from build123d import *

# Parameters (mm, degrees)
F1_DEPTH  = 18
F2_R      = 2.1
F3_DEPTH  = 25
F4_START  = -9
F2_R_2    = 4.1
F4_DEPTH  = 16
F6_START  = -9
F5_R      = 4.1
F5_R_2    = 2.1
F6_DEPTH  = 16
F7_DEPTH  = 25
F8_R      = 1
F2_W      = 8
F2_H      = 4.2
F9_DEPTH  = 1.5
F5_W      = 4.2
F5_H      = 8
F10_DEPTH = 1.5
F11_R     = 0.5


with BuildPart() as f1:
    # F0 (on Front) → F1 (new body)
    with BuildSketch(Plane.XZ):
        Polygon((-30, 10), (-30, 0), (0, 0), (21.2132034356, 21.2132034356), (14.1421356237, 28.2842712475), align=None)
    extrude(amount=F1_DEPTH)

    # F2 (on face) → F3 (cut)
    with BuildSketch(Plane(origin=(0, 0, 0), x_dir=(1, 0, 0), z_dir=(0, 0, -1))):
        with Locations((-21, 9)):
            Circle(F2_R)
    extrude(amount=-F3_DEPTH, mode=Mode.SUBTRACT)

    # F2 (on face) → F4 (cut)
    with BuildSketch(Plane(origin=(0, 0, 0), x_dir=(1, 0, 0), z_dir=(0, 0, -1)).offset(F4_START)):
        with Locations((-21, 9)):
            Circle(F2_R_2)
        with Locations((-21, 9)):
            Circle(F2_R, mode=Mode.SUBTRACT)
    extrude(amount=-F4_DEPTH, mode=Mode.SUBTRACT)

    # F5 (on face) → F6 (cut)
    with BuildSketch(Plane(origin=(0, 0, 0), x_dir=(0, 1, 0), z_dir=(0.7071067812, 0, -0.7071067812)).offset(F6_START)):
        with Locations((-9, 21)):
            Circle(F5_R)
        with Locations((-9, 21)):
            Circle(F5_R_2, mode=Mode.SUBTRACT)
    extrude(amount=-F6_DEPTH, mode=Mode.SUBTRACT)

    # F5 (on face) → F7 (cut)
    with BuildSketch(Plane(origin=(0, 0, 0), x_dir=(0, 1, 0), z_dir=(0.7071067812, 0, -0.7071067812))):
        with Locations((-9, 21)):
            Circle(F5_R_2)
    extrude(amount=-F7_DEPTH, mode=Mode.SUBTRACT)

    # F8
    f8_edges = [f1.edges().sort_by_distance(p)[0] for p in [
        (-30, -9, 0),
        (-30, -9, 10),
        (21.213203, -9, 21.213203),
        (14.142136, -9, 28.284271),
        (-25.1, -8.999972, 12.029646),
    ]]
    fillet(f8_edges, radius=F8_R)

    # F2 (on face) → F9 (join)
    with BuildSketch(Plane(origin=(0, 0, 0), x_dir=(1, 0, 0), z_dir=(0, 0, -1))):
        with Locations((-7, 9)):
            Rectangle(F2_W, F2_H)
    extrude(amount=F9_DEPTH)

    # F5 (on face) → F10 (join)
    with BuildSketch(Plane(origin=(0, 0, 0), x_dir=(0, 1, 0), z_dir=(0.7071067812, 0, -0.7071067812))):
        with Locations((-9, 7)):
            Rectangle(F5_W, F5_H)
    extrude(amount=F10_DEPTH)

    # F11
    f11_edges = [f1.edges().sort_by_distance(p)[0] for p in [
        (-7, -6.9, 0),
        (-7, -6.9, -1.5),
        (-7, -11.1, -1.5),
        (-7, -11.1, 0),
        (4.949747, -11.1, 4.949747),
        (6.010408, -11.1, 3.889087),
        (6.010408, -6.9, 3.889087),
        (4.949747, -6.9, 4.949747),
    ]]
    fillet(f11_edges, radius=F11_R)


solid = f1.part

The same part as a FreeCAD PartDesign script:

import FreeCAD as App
import Part
import Sketcher
Q = App.Units.Quantity


def edges_at(feature, points):
    """Names of the edges that pass closest to the given points."""
    edges = feature.Shape.Edges
    near = lambda p: min(range(len(edges)), key=lambda i: edges[i].distToShape(Part.Vertex(*p))[0])
    return sorted({f"Edge{near(p) + 1}" for p in points})


def add_polygon(sketch, points):
    """Adds a closed chain of lines whose ends are joined by coincident constraints."""
    first, n = sketch.GeometryCount, len(points)
    for a, b in zip(points, points[1:] + points[:1]):
        sketch.addGeometry(Part.LineSegment(App.Vector(*a, 0), App.Vector(*b, 0)), False)
    for i in range(n):
        sketch.addConstraint(Sketcher.Constraint("Coincident", first + i, 2, first + (i + 1) % n, 1))

doc = App.newDocument("Part")
body = doc.addObject("PartDesign::Body", "Body")

sketch1 = body.newObject("Sketcher::SketchObject", "Sketch")
sketch1.AttachmentSupport = (doc.getObject("XZ_Plane"), [""])
sketch1.MapMode = "FlatFace"
add_polygon(sketch1, [(-30, 10), (-30, 0), (0, 0), (21.213203, 21.213203), (14.142136, 28.284271)])
sketch1.addConstraint([
    Sketcher.Constraint("Vertical", 0),
    Sketcher.Constraint("Horizontal", 1),
    Sketcher.Constraint("Coincident", 1, 2, -1, 1),
    Sketcher.Constraint("Perpendicular", 2, 3),
    Sketcher.Constraint("DistanceX", 1, 1, 1, 2, Q("30 mm")),
    Sketcher.Constraint("DistanceY", 0, 2, 0, 1, Q("10 mm")),
    Sketcher.Constraint("Angle", 2, Q("45 deg")),
    Sketcher.Constraint("Distance", 2, Q("30 mm")),
    Sketcher.Constraint("Distance", 3, Q("10 mm")),
])
pad1 = body.newObject("PartDesign::Pad", "Pad")
pad1.Profile = sketch1
pad1.Length = 18

sketch2 = body.newObject("Sketcher::SketchObject", "Sketch001")
sketch2.AttachmentSupport = (doc.getObject("XY_Plane"), [""])
sketch2.MapMode = "FlatFace"
sketch2.addGeometry(Part.Circle(App.Vector(-21, -9, 0), App.Vector(0, 0, 1), 2.1), False)
sketch2.addConstraint([
    Sketcher.Constraint("Diameter", 0, Q("4.2 mm")),
    Sketcher.Constraint("DistanceX", 0, 3, -1, 1, Q("21 mm")),
    Sketcher.Constraint("DistanceY", 0, 3, -1, 1, Q("9 mm")),
])
pocket1 = body.newObject("PartDesign::Pocket", "Pocket")
pocket1.Profile = sketch2
pocket1.Length = 25
pocket1.Reversed = True

sketch3 = body.newObject("Sketcher::SketchObject", "Sketch002")
sketch3.AttachmentSupport = (doc.getObject("XY_Plane"), [""])
sketch3.MapMode = "FlatFace"
sketch3.AttachmentOffset = App.Placement(App.Vector(0, 0, 9), App.Rotation())
sketch3.addGeometry([
    Part.Circle(App.Vector(-21, -9, 0), App.Vector(0, 0, 1), 4.1),
    Part.Circle(App.Vector(-21, -9, 0), App.Vector(0, 0, 1), 2.1),
], False)
sketch3.addConstraint([
    Sketcher.Constraint("Coincident", 1, 3, 0, 3),
    Sketcher.Constraint("Diameter", 0, Q("8.2 mm")),
    Sketcher.Constraint("Diameter", 1, Q("4.2 mm")),
    Sketcher.Constraint("DistanceX", 0, 3, -1, 1, Q("21 mm")),
    Sketcher.Constraint("DistanceY", 0, 3, -1, 1, Q("9 mm")),
])
pocket2 = body.newObject("PartDesign::Pocket", "Pocket001")
pocket2.Profile = sketch3
pocket2.Length = 16
pocket2.Reversed = True

sketch4 = body.newObject("Sketcher::SketchObject", "Sketch003")
sketch4.Placement = App.Placement(App.Vector(-6.363961, 0, 6.363961), App.Rotation(App.Vector(0, 1, 0), App.Vector(0.707106781, 0, 0.707106781), App.Vector(0.707106781, 0, -0.707106781), "ZXY"))
sketch4.addGeometry([
    Part.Circle(App.Vector(-9, 21, 0), App.Vector(0, 0, 1), 4.1),
    Part.Circle(App.Vector(-9, 21, 0), App.Vector(0, 0, 1), 2.1),
], False)
sketch4.addConstraint([
    Sketcher.Constraint("Coincident", 1, 3, 0, 3),
    Sketcher.Constraint("Diameter", 0, Q("8.2 mm")),
    Sketcher.Constraint("Diameter", 1, Q("4.2 mm")),
    Sketcher.Constraint("DistanceX", 0, 3, -1, 1, Q("9 mm")),
    Sketcher.Constraint("DistanceY", -1, 1, 0, 3, Q("21 mm")),
])
pocket3 = body.newObject("PartDesign::Pocket", "Pocket002")
pocket3.Profile = sketch4
pocket3.Length = 16

sketch5 = body.newObject("Sketcher::SketchObject", "Sketch004")
sketch5.Placement = App.Placement(App.Vector(0, 0, 0), App.Rotation(App.Vector(0, 1, 0), App.Vector(0.707106781, 0, 0.707106781), App.Vector(0.707106781, 0, -0.707106781), "ZXY"))
sketch5.addGeometry(Part.Circle(App.Vector(-9, 21, 0), App.Vector(0, 0, 1), 2.1), False)
sketch5.addConstraint([
    Sketcher.Constraint("Diameter", 0, Q("4.2 mm")),
    Sketcher.Constraint("DistanceX", 0, 3, -1, 1, Q("9 mm")),
    Sketcher.Constraint("DistanceY", -1, 1, 0, 3, Q("21 mm")),
])
pocket4 = body.newObject("PartDesign::Pocket", "Pocket003")
pocket4.Profile = sketch5
pocket4.Length = 25
doc.recompute()

fillet = body.newObject("PartDesign::Fillet", "Fillet")
fillet.Base = (pocket4, edges_at(pocket4, [
    (-30, -9, 0),
    (-30, -9, 10),
    (21.213, -9, 21.213),
    (14.142, -9, 28.284),
    (-25.1, -9, 12.03),
]))
fillet.Radius = 1

sketch6 = body.newObject("Sketcher::SketchObject", "Sketch005")
sketch6.AttachmentSupport = (doc.getObject("XY_Plane"), [""])
sketch6.MapMode = "FlatFace"
add_polygon(sketch6, [(-11, -11.1), (-11, -6.9), (-3, -6.9), (-3, -11.1)])
sketch6.addConstraint([
    Sketcher.Constraint("Vertical", 0),
    Sketcher.Constraint("Horizontal", 1),
    Sketcher.Constraint("Vertical", 2),
    Sketcher.Constraint("Horizontal", 3),
    Sketcher.Constraint("DistanceX", 1, 1, 1, 2, Q("8 mm")),
    Sketcher.Constraint("DistanceY", 0, 1, 0, 2, Q("4.2 mm")),
    Sketcher.Constraint("DistanceX", 0, 2, -1, 1, Q("11 mm")),
    Sketcher.Constraint("DistanceY", 0, 2, -1, 1, Q("6.9 mm")),
])
pad2 = body.newObject("PartDesign::Pad", "Pad001")
pad2.Profile = sketch6
pad2.Length = 1.5
pad2.Reversed = True

sketch7 = body.newObject("Sketcher::SketchObject", "Sketch006")
sketch7.Placement = App.Placement(App.Vector(0, 0, 0), App.Rotation(App.Vector(0, 1, 0), App.Vector(0.707106781, 0, 0.707106781), App.Vector(0.707106781, 0, -0.707106781), "ZXY"))
add_polygon(sketch7, [(-11.1, 11), (-11.1, 3), (-6.9, 3), (-6.9, 11)])
sketch7.addConstraint([
    Sketcher.Constraint("Vertical", 0),
    Sketcher.Constraint("Horizontal", 1),
    Sketcher.Constraint("Vertical", 2),
    Sketcher.Constraint("Horizontal", 3),
    Sketcher.Constraint("DistanceY", 0, 2, 0, 1, Q("8 mm")),
    Sketcher.Constraint("DistanceX", 1, 1, 1, 2, Q("4.2 mm")),
    Sketcher.Constraint("DistanceY", -1, 1, 0, 2, Q("3 mm")),
    Sketcher.Constraint("DistanceX", 0, 2, -1, 1, Q("11.1 mm")),
])
pad3 = body.newObject("PartDesign::Pad", "Pad002")
pad3.Profile = sketch7
pad3.Length = 1.5
doc.recompute()

fillet2 = body.newObject("PartDesign::Fillet", "Fillet001")
fillet2.Base = (pad3, edges_at(pad3, [
    (-7, -6.9, 0),
    (-7, -6.9, -1.5),
    (-7, -11.1, -1.5),
    (-7, -11.1, 0),
    (4.95, -11.1, 4.95),
    (6.01, -11.1, 3.889),
    (6.01, -6.9, 3.889),
    (4.95, -6.9, 4.95),
]))
fillet2.Radius = 0.5

doc.recompute()
